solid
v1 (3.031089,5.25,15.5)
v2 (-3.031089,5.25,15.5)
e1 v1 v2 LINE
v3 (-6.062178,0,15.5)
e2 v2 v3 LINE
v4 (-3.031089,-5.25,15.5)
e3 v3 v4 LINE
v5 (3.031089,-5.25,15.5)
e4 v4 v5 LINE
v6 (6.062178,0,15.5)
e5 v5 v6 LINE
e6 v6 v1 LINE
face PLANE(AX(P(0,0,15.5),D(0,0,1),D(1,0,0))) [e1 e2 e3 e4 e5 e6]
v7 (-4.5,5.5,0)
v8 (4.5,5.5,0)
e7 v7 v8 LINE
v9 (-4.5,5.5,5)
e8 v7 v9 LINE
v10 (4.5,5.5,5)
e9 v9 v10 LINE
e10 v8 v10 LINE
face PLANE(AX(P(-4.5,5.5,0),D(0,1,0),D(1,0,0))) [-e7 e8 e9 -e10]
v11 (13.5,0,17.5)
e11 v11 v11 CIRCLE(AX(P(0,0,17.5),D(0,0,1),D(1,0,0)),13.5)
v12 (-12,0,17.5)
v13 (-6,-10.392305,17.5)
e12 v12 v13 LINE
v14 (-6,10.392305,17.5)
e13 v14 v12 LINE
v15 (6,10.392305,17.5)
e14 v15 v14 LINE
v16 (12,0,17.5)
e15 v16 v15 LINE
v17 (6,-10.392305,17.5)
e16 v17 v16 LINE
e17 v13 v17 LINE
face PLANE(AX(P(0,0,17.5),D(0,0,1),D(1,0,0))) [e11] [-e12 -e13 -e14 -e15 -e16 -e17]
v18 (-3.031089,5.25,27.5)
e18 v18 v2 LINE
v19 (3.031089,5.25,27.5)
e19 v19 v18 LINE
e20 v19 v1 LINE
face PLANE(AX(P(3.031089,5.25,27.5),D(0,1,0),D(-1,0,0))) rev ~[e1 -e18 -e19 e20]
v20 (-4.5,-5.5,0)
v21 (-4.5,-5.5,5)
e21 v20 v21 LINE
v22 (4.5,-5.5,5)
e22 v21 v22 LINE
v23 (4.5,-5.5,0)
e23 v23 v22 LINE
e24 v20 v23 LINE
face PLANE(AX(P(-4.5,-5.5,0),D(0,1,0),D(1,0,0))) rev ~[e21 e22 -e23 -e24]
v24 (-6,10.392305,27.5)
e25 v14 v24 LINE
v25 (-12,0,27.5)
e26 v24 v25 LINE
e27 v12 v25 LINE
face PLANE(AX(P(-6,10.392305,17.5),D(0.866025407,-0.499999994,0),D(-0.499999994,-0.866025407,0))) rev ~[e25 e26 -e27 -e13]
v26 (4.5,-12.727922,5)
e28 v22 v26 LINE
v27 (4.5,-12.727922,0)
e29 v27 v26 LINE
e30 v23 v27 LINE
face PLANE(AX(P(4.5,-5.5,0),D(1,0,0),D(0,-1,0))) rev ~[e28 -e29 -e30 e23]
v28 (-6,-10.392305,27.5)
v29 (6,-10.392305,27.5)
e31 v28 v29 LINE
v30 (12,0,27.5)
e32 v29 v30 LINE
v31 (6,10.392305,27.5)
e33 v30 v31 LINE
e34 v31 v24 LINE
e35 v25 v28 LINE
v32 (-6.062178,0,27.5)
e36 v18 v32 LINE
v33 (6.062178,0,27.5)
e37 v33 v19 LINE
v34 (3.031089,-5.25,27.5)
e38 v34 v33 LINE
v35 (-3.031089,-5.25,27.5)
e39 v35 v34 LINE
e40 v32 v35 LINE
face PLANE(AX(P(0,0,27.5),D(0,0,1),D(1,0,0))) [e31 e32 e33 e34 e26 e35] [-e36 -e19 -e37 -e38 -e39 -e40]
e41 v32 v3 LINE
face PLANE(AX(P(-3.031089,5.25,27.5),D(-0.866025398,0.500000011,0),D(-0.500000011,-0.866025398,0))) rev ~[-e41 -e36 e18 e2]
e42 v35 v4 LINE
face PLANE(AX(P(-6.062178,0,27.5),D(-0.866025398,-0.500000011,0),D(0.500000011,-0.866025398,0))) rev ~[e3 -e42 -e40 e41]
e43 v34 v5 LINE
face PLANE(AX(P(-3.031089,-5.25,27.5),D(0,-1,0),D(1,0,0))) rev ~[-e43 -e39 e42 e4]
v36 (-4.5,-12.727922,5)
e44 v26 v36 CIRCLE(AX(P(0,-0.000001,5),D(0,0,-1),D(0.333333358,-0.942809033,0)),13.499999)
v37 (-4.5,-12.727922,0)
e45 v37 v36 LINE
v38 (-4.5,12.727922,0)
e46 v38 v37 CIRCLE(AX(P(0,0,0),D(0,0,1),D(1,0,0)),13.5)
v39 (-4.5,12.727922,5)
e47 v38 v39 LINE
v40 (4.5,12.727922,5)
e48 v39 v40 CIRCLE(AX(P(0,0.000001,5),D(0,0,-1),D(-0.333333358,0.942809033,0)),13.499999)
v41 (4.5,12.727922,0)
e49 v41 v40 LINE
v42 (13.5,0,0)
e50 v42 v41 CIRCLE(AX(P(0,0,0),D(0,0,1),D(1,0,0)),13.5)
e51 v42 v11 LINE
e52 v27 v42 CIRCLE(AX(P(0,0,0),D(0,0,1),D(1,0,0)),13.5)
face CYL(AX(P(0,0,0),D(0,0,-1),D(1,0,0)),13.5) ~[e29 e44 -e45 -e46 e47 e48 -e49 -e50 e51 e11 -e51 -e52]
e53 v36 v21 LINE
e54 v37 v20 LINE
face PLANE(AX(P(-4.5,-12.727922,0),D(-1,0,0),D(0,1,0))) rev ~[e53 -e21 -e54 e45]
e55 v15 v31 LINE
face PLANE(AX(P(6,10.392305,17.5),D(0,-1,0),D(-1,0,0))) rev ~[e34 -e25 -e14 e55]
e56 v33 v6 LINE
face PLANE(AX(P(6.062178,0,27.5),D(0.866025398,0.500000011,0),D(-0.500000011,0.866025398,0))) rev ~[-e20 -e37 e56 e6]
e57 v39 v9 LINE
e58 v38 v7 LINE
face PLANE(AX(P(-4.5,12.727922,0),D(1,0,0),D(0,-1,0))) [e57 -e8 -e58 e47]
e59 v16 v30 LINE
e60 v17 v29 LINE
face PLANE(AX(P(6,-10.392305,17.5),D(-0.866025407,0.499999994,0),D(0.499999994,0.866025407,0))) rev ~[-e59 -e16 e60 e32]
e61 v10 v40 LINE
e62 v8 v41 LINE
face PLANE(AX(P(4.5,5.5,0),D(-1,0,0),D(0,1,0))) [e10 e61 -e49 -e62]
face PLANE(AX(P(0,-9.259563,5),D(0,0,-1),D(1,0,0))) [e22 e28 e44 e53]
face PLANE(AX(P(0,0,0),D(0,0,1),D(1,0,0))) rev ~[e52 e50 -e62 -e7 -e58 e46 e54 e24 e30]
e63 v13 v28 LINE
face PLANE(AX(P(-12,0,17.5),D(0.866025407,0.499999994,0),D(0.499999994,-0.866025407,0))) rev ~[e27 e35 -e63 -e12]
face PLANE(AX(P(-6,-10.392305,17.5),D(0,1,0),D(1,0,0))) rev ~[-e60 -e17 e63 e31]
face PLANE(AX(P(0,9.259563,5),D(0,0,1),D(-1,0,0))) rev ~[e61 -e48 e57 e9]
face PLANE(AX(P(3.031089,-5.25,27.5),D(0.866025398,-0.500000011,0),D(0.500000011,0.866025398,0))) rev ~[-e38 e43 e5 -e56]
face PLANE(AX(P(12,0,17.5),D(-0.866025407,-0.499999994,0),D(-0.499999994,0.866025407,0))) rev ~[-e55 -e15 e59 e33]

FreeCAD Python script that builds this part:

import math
import FreeCAD as App
import Part
import Sketcher

V = App.Vector
Q = App.Units.Quantity


def add_polygon(sketch, points):
    """Adds a closed chain of lines whose ends are joined by coincident constraints."""
    first, n = sketch.GeometryCount, len(points)
    for a, b in zip(points, points[1:] + points[:1]):
        sketch.addGeometry(Part.LineSegment(App.Vector(*a, 0), App.Vector(*b, 0)), False)
    for i in range(n):
        sketch.addConstraint(Sketcher.Constraint("Coincident", first + i, 2, first + (i + 1) % n, 1))

doc = App.newDocument("Part")
params = doc.addObject("Spreadsheet::Sheet", "Params")
for row, (alias, value) in enumerate([
    ("sketch1_diameter", "27 mm"),
    ("pad1_length", "17.5 mm"),
    ("sketch2_width", "12 mm"),
    ("sketch2_length", "12 mm"),
    ("pad2_length", "10 mm"),
    ("pocket1_length", "12 mm"),
    ("sketch4_radius", "13.499999 mm"),
    ("sketch4_width", "9 mm"),
    ("pocket2_length", "5 mm"),
], start=1):
    params.set(f"A{row}", alias)
    params.set(f"B{row}", "=" + value)
    params.setAlias(f"B{row}", alias)

body = doc.addObject("PartDesign::Body", "Body")

# Sketch on XY plane
sketch1 = doc.addObject("Sketcher::SketchObject", "Sketch")
body.addObject(sketch1)
sketch1.AttachmentSupport = (doc.XY_Plane, [""])
sketch1.MapMode = "FlatFace"
sketch1.addGeometry(Part.Circle(V(0, 0, 0), V(0, 0, 1), 14), False)
sketch1.addConstraint([
    Sketcher.Constraint("Coincident", 0, 3, -1, 1),
    Sketcher.Constraint("Diameter", 0, Q("27 mm")),
])
sketch1.setExpression("Constraints[1]", "Params.sketch1_diameter")
pad1 = doc.addObject("PartDesign::Pad", "Pad")
body.addObject(pad1)
pad1.Profile = sketch1
pad1.setExpression("Length", "Params.pad1_length")

# Sketch on XY plane
sketch2 = doc.addObject("Sketcher::SketchObject", "Sketch001")
body.addObject(sketch2)
sketch2.AttachmentSupport = (doc.XY_Plane, [""])
sketch2.MapMode = "FlatFace"
sketch2.AttachmentOffset = App.Placement(V(0, 0, 17.5), App.Rotation())
add_polygon(sketch2, [(12, 0), (6, 10), (-6, 10), (-12, 0), (-6, -10), (6, -10)])  # lines 0-5
sketch2.addConstraint([
    Sketcher.Constraint("Horizontal", 1),
    Sketcher.Constraint("Horizontal", 4),
    Sketcher.Constraint("Symmetric", 0, 2, 3, 2, -1, 1),
    Sketcher.Constraint("Symmetric", 2, 2, 5, 2, -1, 1),
    Sketcher.Constraint("PointOnObject", 2, 2, -1),
    Sketcher.Constraint("Parallel", 2, 5),
    Sketcher.Constraint("Vertical", 1, 2, 3, 2),
    Sketcher.Constraint("DistanceX", 1, 2, 1, 1, Q("12 mm")),
    Sketcher.Constraint("Angle", 0, Q("120 deg")),
    Sketcher.Constraint("Distance", 0, Q("12 mm")),
])
sketch2.setExpression("Constraints[13]", "Params.sketch2_width")
sketch2.setExpression("Constraints[15]", "Params.sketch2_length")
pad2 = doc.addObject("PartDesign::Pad", "Pad001")
body.addObject(pad2)
pad2.Profile = sketch2
pad2.setExpression("Length", "Params.pad2_length")

# Sketch on XY plane
sketch3 = doc.addObject("Sketcher::SketchObject", "Sketch002")
body.addObject(sketch3)
sketch3.AttachmentSupport = (doc.XY_Plane, [""])
sketch3.MapMode = "FlatFace"
sketch3.AttachmentOffset = App.Placement(V(0, 0, 27.5), App.Rotation())
add_polygon(sketch3, [(6, 0), (3, 5), (-3, 5), (-6, 0), (-3, -5), (3, -5)])  # lines 0-5
sketch3.addConstraint([
    Sketcher.Constraint("Horizontal", 1),
    Sketcher.Constraint("Horizontal", 4),
    Sketcher.Constraint("Symmetric", 0, 2, 3, 2, -1, 1),
    Sketcher.Constraint("Symmetric", 2, 2, 5, 2, -1, 1),
    Sketcher.Constraint("PointOnObject", 2, 2, -1),
    Sketcher.Constraint("Parallel", 2, 5),
    Sketcher.Constraint("Vertical", 1, 2, 3, 2),
    Sketcher.Constraint("Angle", 0, Q("120.000001 deg")),
    Sketcher.Constraint("DistanceY", 3, 2, 1, 2, Q("10.5 mm")),
    Sketcher.Constraint("DistanceX", 1, 2, 1, 1, Q("6.062178 mm")),
])
pocket1 = doc.addObject("PartDesign::Pocket", "Pocket")
body.addObject(pocket1)
pocket1.Profile = sketch3
pocket1.setExpression("Length", "Params.pocket1_length")

# Sketch on XY plane
sketch4 = doc.addObject("Sketcher::SketchObject", "Sketch003")
body.addObject(sketch4)
sketch4.AttachmentSupport = (doc.XY_Plane, [""])
sketch4.MapMode = "FlatFace"
sketch4.addGeometry([
    Part.LineSegment(V(-4, -13, 0), V(-4, -6, 0)),  # 0
    Part.LineSegment(V(-4, -6, 0), V(4, -6, 0)),  # 1
    Part.LineSegment(V(4, -6, 0), V(4, -13, 0)),  # 2
    Part.ArcOfCircle(Part.Circle(V(0, 0, 0), V(0, 0, 1), 13), math.radians(-109), math.radians(-71)),  # 3
    Part.LineSegment(V(4, 6, 0), V(-4, 6, 0)),  # 4
    Part.LineSegment(V(-4, 6, 0), V(-4, 13, 0)),  # 5
    Part.ArcOfCircle(Part.Circle(V(0, 0, 0), V(0, 0, 1), 13), math.radians(71), math.radians(109)),  # 6
    Part.LineSegment(V(4, 13, 0), V(4, 6, 0)),  # 7
], False)
sketch4.addConstraint([
    Sketcher.Constraint("Coincident", 0, 2, 1, 1),
    Sketcher.Constraint("Coincident", 1, 2, 2, 1),
    Sketcher.Constraint("Coincident", 2, 2, 3, 2),
    Sketcher.Constraint("Coincident", 3, 1, 0, 1),
    Sketcher.Constraint("Coincident", 4, 2, 5, 1),
    Sketcher.Constraint("Coincident", 5, 2, 6, 2),
    Sketcher.Constraint("Coincident", 6, 1, 7, 1),
    Sketcher.Constraint("Coincident", 7, 2, 4, 1),
    Sketcher.Constraint("Vertical", 0),
    Sketcher.Constraint("Horizontal", 1),
    Sketcher.Constraint("Vertical", 2),
    Sketcher.Constraint("Horizontal", 4),
    Sketcher.Constraint("Vertical", 5),
    Sketcher.Constraint("Vertical", 7),
    Sketcher.Constraint("Coincident", 3, 3, -1, 1),
    Sketcher.Constraint("Coincident", 6, 3, -1, 1),
    Sketcher.Constraint("Equal", 3, 6),
    Sketcher.Constraint("Symmetric", 1, 2, 4, 2, -1, 1),
    Sketcher.Constraint("Horizontal", 2, 2, 3, 1),
    Sketcher.Constraint("Horizontal", 5, 2, 6, 1),
    Sketcher.Constraint("Radius", 3, Q("13.499999 mm")),
    Sketcher.Constraint("DistanceX", 1, 1, 1, 2, Q("9 mm")),
    Sketcher.Constraint("DistanceY", 0, 2, 4, 2, Q("11 mm")),
])
sketch4.setExpression("Constraints[20]", "Params.sketch4_radius")
sketch4.setExpression("Constraints[21]", "Params.sketch4_width")
pocket2 = doc.addObject("PartDesign::Pocket", "Pocket001")
body.addObject(pocket2)
pocket2.Profile = sketch4
pocket2.setExpression("Length", "Params.pocket2_length")
pocket2.Reversed = True

doc.recompute()
